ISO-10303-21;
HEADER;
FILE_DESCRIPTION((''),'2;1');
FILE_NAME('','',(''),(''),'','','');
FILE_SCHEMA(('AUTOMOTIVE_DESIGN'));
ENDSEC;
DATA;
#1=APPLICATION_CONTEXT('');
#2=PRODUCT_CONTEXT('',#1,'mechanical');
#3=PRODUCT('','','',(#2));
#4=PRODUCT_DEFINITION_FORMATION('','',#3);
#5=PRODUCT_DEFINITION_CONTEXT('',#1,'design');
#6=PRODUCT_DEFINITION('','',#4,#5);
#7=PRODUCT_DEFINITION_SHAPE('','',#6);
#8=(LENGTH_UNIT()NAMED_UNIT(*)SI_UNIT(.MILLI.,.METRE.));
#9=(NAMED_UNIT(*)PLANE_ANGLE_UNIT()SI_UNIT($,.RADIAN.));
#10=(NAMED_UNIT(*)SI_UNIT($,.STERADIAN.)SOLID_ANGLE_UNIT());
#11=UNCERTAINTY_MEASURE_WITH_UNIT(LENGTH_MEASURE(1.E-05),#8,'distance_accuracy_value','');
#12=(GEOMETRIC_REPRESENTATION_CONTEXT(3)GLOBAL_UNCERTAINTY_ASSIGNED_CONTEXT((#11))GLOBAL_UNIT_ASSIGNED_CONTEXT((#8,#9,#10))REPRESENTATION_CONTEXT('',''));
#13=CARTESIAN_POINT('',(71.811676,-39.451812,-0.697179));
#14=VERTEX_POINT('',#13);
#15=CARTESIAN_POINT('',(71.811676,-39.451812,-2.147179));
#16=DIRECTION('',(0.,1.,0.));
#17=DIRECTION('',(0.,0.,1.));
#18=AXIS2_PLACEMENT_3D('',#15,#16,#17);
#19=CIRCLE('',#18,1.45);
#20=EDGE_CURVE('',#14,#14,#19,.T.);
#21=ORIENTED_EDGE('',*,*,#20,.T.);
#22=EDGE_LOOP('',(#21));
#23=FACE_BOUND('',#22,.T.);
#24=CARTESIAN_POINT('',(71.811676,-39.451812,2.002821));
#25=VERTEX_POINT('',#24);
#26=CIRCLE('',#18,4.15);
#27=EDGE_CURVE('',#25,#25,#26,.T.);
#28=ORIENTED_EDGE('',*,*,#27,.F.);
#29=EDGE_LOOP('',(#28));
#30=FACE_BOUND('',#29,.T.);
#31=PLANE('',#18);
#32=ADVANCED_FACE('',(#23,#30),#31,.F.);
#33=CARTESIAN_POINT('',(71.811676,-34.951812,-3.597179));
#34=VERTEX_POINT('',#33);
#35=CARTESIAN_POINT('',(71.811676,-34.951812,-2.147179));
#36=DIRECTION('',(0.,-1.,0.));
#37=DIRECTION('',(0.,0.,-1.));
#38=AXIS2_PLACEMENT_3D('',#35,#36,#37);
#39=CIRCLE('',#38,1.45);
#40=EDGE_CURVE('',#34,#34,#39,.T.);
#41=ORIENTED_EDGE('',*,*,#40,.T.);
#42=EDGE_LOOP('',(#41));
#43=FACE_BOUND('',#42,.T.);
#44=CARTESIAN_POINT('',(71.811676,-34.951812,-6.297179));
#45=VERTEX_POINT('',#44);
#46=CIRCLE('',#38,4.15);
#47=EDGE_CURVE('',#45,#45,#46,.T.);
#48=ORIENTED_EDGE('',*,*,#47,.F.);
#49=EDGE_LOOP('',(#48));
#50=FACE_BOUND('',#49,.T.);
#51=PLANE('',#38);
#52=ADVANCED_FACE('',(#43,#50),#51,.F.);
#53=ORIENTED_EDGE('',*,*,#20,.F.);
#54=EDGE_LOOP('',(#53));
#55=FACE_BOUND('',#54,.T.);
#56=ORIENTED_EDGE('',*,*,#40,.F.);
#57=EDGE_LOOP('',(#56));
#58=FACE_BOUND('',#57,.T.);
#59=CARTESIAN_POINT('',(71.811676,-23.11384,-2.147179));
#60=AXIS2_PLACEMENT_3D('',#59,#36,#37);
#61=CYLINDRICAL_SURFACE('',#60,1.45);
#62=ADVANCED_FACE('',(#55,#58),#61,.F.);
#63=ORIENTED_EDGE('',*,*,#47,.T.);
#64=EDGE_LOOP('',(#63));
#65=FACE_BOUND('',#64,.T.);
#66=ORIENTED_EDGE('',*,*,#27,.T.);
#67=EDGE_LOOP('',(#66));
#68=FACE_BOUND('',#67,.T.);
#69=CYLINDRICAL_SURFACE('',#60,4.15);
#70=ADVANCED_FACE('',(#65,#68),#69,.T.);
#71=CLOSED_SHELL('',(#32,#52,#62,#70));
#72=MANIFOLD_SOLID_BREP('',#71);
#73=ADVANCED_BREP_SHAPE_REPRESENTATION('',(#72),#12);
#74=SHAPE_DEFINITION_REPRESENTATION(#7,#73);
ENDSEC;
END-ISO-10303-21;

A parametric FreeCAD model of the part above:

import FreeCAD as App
import Part
import Sketcher
Q = App.Units.Quantity

doc = App.newDocument("Part")
body = doc.addObject("PartDesign::Body", "Body")

# Sketch on XZ plane
sketch1 = body.newObject("Sketcher::SketchObject", "Sketch")
sketch1.AttachmentSupport = (doc.getObject("XZ_Plane"), [""])
sketch1.MapMode = "FlatFace"
sketch1.AttachmentOffset = App.Placement(App.Vector(0, 0, 39.451812), App.Rotation())
sketch1.addGeometry([
    Part.Circle(App.Vector(71.811676, -2.147179, 0), App.Vector(0, 0, 1), 4.15),
    Part.Circle(App.Vector(71.811676, -2.147179, 0), App.Vector(0, 0, 1), 1.45),
], False)
sketch1.addConstraint([
    Sketcher.Constraint("Coincident", 1, 3, 0, 3),
    Sketcher.Constraint("Diameter", 0, Q("8.3 mm")),
    Sketcher.Constraint("Diameter", 1, Q("2.9 mm")),
    Sketcher.Constraint("DistanceY", 0, 3, -1, 1, Q("2.147179 mm")),
    Sketcher.Constraint("DistanceX", -1, 1, 0, 3, Q("71.811676 mm")),
])
pad1 = body.newObject("PartDesign::Pad", "Pad")
pad1.Profile = sketch1
pad1.Length = 4.5
pad1.Reversed = True

doc.recompute()
